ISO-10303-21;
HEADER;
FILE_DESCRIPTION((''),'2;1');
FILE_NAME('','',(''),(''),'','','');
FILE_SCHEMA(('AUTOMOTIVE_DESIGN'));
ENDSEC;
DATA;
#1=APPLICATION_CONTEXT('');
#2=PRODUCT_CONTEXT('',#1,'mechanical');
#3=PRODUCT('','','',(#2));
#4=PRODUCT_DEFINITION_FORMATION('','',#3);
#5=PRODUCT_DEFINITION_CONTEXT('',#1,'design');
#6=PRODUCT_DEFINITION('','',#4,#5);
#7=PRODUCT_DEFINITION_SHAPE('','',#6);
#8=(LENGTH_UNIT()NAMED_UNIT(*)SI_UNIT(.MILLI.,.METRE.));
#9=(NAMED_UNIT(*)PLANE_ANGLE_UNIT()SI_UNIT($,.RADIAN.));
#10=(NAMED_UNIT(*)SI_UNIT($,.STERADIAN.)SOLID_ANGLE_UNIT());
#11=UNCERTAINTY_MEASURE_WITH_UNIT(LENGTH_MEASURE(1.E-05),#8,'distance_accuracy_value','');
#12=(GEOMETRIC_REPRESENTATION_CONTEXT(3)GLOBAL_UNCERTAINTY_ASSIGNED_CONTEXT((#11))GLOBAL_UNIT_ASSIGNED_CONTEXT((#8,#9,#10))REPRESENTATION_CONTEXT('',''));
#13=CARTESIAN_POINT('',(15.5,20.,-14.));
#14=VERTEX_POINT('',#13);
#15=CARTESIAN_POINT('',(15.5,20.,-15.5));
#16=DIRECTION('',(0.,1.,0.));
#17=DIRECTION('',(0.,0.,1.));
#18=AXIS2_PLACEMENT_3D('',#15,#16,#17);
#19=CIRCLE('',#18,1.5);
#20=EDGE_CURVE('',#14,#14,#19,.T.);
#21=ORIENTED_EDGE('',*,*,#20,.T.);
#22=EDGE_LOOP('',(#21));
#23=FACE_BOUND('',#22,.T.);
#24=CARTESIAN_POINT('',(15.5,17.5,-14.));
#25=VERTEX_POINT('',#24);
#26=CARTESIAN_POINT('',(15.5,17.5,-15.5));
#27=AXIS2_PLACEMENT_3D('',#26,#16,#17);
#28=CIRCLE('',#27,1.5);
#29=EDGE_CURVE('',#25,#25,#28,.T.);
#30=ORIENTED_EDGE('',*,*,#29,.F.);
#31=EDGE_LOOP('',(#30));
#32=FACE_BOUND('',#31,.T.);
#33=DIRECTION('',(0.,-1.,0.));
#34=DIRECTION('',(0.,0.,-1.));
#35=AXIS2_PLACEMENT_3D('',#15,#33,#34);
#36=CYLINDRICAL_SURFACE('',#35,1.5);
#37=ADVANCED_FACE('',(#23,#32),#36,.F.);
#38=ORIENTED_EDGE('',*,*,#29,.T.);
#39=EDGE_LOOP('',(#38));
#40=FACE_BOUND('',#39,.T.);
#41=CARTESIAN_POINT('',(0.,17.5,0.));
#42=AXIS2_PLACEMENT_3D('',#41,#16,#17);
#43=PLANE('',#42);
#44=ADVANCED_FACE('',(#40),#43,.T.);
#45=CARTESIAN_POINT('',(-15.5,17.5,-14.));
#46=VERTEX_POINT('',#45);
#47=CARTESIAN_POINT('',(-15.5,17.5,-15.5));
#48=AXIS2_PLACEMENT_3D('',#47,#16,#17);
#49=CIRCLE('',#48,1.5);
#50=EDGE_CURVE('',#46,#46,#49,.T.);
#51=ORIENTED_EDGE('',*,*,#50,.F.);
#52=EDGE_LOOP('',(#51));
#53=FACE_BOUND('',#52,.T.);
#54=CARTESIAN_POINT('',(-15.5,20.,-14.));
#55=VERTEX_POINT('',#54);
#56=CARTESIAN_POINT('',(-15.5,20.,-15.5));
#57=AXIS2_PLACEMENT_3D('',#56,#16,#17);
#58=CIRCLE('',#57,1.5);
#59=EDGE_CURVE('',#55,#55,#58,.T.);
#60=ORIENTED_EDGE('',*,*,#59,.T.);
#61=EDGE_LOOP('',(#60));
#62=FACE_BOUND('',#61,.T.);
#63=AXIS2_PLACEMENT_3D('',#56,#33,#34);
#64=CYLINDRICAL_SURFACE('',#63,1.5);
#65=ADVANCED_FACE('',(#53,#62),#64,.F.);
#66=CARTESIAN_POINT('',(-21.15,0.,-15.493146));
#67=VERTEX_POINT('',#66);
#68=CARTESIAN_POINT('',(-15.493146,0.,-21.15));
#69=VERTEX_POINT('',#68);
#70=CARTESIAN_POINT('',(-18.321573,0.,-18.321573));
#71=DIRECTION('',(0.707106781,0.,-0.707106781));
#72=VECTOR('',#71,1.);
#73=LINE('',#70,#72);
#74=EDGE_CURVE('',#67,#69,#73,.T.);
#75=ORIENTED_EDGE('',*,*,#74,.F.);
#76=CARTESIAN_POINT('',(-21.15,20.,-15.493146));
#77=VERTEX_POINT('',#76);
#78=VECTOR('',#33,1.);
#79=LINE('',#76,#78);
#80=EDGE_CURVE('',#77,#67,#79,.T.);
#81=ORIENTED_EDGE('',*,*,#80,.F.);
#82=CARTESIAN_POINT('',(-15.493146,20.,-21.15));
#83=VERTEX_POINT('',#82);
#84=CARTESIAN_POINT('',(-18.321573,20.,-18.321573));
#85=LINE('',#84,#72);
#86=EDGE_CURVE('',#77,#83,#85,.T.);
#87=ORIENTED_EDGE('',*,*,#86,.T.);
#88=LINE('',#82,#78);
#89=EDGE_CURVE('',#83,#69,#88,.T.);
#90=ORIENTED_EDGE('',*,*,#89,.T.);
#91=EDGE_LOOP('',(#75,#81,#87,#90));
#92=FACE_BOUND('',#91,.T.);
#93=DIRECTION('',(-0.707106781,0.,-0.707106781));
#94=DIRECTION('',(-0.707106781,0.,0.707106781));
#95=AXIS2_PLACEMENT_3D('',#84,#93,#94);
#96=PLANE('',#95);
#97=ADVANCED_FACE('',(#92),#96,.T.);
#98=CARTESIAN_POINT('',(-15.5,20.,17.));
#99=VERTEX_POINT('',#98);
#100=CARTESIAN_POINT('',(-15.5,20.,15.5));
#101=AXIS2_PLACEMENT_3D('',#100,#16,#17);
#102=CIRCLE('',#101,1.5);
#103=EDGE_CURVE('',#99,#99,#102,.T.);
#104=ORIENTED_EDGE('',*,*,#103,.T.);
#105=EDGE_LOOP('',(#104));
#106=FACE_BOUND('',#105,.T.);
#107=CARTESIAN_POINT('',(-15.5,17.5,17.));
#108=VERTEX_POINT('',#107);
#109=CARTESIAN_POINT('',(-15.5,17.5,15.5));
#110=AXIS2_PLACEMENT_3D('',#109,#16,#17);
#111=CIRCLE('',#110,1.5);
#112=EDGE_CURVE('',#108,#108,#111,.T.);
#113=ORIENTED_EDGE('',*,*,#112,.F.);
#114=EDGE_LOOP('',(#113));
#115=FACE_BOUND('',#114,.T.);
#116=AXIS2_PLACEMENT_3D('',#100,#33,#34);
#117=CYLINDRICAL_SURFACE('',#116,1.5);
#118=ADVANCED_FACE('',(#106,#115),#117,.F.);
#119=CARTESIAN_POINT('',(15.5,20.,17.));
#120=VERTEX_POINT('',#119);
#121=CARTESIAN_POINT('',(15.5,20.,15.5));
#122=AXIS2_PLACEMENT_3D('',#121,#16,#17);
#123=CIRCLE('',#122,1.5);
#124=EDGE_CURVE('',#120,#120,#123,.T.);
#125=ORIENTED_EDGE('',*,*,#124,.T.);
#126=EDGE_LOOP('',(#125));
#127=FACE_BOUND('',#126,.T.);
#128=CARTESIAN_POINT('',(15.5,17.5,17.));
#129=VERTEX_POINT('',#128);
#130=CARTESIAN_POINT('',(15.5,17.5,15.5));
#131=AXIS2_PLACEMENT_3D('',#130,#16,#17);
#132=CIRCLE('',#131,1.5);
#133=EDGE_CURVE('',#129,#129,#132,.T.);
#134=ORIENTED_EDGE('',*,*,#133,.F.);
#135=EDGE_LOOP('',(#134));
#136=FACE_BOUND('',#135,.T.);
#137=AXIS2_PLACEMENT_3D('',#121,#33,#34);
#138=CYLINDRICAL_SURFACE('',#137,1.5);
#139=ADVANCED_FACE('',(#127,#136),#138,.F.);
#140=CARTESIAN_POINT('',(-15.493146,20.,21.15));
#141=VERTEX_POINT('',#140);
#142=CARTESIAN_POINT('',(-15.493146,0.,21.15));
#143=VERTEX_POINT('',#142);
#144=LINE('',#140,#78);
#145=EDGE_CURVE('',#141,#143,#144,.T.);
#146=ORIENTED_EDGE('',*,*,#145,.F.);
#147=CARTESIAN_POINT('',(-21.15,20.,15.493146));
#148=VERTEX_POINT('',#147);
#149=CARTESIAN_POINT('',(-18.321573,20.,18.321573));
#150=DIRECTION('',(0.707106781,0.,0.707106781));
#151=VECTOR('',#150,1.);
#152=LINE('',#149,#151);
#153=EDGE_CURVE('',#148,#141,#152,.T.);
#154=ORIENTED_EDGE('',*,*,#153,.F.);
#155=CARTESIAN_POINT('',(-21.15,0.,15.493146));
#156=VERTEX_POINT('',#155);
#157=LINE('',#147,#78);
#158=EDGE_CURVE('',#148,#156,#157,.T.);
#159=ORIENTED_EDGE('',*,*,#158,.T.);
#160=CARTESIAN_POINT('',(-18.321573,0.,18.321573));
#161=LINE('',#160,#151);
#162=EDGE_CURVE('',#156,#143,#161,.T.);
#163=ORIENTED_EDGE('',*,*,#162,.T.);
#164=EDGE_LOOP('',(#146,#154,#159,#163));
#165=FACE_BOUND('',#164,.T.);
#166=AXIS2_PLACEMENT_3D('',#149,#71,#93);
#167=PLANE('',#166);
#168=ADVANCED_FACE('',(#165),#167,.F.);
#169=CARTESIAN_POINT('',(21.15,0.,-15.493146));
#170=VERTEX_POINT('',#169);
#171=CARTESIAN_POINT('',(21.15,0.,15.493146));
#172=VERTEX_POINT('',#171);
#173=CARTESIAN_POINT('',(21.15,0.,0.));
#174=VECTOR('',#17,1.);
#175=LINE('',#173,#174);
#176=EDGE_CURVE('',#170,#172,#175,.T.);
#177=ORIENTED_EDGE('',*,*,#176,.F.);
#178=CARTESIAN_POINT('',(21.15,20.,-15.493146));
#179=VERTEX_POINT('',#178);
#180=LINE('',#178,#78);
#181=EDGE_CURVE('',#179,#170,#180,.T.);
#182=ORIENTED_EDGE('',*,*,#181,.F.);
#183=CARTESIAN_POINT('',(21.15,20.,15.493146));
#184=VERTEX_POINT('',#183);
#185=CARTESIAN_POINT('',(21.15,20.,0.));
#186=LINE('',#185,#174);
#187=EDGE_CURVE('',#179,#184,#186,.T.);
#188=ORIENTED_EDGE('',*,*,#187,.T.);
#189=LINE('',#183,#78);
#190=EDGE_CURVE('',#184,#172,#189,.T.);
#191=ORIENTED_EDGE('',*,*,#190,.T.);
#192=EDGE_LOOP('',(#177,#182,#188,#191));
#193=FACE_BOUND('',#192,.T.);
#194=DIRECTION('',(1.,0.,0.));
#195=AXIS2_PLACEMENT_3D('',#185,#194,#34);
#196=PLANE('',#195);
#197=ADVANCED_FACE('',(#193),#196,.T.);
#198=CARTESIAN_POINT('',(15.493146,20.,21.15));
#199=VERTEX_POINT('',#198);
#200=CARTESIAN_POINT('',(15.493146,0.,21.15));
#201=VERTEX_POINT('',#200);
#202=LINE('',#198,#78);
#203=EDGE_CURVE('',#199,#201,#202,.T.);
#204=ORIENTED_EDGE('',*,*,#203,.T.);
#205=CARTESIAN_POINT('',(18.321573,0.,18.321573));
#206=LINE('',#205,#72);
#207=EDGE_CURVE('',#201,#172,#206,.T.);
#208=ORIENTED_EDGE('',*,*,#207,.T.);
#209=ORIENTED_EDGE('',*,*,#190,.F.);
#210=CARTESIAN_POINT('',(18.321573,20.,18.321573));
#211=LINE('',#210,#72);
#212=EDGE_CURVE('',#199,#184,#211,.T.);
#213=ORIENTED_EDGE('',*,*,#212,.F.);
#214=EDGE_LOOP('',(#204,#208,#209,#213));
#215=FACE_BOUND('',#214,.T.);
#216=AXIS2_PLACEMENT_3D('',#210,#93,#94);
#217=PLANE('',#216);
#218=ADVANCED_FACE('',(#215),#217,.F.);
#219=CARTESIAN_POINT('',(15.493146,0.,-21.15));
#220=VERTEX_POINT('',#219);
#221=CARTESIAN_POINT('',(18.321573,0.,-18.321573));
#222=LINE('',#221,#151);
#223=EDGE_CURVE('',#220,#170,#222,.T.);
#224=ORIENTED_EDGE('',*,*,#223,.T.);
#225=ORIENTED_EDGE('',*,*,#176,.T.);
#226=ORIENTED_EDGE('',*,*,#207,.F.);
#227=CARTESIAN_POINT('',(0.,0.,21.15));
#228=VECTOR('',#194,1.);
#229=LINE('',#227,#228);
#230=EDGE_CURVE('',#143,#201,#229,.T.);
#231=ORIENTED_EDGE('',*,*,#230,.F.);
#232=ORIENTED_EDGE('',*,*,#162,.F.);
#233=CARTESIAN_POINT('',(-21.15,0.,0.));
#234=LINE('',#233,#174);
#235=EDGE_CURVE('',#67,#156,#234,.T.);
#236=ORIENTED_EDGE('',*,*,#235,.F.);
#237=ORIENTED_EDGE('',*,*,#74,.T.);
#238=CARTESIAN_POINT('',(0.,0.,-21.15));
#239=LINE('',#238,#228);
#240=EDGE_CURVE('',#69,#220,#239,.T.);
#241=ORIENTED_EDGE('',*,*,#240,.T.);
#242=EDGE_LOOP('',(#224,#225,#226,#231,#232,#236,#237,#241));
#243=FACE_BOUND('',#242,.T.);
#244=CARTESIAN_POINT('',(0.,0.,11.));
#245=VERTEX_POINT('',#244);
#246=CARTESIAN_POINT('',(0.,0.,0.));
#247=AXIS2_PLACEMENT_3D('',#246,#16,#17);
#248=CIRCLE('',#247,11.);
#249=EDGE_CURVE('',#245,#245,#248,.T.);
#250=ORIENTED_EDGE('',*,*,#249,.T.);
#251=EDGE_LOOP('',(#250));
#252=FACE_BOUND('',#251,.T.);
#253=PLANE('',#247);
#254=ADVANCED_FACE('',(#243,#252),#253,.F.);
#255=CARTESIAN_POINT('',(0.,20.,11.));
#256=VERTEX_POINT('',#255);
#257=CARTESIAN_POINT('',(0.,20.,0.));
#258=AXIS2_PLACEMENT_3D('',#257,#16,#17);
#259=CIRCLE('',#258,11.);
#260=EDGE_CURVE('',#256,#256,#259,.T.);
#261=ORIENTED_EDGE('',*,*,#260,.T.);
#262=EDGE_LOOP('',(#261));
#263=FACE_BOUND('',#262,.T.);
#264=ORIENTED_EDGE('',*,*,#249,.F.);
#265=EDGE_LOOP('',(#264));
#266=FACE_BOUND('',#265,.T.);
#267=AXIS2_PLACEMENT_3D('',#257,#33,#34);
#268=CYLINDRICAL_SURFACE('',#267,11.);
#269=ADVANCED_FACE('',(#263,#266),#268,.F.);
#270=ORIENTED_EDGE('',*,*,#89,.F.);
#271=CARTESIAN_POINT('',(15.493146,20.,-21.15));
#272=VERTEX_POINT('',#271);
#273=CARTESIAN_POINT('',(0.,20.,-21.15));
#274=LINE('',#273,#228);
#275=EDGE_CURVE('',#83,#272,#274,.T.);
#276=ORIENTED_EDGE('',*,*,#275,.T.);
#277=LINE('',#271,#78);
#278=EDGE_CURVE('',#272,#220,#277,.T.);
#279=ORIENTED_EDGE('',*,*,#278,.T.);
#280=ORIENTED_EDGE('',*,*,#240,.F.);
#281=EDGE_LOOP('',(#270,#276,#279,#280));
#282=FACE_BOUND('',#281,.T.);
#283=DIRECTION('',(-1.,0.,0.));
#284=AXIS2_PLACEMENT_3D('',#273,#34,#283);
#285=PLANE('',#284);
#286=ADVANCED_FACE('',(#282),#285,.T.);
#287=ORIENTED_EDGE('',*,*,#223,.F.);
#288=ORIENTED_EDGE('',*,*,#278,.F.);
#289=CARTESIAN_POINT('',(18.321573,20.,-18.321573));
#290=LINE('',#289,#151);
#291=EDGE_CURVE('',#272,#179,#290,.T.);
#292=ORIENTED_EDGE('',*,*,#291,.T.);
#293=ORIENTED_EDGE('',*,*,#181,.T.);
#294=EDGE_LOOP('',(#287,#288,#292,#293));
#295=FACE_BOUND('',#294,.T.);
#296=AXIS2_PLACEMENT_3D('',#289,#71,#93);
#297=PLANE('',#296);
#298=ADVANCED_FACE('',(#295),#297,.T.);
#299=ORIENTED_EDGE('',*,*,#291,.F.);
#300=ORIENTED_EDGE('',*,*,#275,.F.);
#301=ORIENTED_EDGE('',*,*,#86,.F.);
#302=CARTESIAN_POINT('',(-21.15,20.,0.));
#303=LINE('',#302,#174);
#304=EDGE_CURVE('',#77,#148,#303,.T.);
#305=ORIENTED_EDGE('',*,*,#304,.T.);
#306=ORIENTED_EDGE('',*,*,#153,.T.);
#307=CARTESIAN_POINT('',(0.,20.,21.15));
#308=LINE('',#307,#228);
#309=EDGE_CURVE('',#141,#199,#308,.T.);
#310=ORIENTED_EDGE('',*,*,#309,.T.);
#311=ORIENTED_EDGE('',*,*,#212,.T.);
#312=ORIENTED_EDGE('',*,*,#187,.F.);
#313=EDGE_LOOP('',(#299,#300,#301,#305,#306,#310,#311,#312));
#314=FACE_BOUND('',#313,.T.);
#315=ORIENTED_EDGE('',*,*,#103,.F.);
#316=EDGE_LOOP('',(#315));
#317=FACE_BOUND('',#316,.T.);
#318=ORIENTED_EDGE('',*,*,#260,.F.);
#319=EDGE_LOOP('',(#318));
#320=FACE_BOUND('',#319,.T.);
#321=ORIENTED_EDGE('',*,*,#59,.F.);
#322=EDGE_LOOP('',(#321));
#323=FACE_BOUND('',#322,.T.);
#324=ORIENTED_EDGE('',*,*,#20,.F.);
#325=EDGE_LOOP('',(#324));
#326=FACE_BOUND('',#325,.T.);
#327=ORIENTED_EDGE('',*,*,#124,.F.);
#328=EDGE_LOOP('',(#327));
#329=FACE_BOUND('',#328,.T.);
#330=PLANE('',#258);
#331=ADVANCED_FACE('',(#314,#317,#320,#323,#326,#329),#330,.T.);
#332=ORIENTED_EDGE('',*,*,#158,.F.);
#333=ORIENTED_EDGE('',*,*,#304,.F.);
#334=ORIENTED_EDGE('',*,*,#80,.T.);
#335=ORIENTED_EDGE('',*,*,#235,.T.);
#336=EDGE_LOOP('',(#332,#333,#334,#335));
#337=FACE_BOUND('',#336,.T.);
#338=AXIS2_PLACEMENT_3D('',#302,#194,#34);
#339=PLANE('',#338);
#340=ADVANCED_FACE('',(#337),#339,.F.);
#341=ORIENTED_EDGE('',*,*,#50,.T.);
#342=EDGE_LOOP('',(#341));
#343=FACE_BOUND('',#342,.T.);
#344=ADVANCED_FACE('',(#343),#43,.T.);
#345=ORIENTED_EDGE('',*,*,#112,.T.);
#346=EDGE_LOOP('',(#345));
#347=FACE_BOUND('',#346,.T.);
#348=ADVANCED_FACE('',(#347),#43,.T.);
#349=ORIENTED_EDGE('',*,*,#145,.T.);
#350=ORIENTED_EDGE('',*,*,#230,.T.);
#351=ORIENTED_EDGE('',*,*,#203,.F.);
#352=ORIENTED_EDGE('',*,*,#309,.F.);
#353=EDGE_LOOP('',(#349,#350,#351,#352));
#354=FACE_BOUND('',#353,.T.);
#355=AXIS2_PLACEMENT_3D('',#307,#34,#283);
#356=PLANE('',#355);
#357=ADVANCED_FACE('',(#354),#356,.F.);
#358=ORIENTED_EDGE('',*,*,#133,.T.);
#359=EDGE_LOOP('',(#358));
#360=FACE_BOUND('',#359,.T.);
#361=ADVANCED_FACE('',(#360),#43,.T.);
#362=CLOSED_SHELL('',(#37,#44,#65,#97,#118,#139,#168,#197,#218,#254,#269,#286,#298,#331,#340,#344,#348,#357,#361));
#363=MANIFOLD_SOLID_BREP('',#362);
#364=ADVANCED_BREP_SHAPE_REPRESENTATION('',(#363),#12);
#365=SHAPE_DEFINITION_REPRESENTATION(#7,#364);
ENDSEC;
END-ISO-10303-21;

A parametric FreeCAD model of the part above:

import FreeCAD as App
import Part
import Sketcher

V = App.Vector

doc = App.newDocument("Part")
body = doc.addObject("PartDesign::Body", "Body")

# Sketch on XZ plane
sketch1 = body.newObject("Sketcher::SketchObject", "Sketch")
sketch1.AttachmentSupport = (doc.getObject("XZ_Plane"), [""])
sketch1.MapMode = "FlatFace"
sketch1.addGeometry(Part.LineSegment(V(-15.5, -21.1, 0), V(-21.1, -15.5, 0)), False)
sketch1.addGeometry(Part.LineSegment(V(-21.1, -15.5, 0), V(-21.1, 15.5, 0)), False)
sketch1.addGeometry(Part.LineSegment(V(-21.1, 15.5, 0), V(-15.5, 21.1, 0)), False)
sketch1.addGeometry(Part.LineSegment(V(-15.5, 21.1, 0), V(15.5, 21.1, 0)), False)
sketch1.addGeometry(Part.LineSegment(V(15.5, 21.1, 0), V(21.1, 15.5, 0)), False)
sketch1.addGeometry(Part.LineSegment(V(21.1, 15.5, 0), V(21.1, -15.5, 0)), False)
sketch1.addGeometry(Part.LineSegment(V(21.1, -15.5, 0), V(15.5, -21.1, 0)), False)
sketch1.addGeometry(Part.LineSegment(V(15.5, -21.1, 0), V(-15.5, -21.1, 0)), False)
sketch1.addGeometry(Part.Circle(V(-15.5, 15.5, 0), V(0, 0, 1), 1.5), False)
sketch1.addGeometry(Part.Circle(V(15.5, 15.5, 0), V(0, 0, 1), 1.5), False)
sketch1.addGeometry(Part.Circle(V(-15.5, -15.5, 0), V(0, 0, 1), 1.5), False)
sketch1.addGeometry(Part.Circle(V(0, 0, 0), V(0, 0, 1), 11), False)
sketch1.addGeometry(Part.Circle(V(15.5, -15.5, 0), V(0, 0, 1), 1.5), False)
sketch1.addConstraint(Sketcher.Constraint("Coincident", 0, 2, 1, 1))
sketch1.addConstraint(Sketcher.Constraint("Coincident", 1, 2, 2, 1))
sketch1.addConstraint(Sketcher.Constraint("Coincident", 2, 2, 3, 1))
sketch1.addConstraint(Sketcher.Constraint("Coincident", 3, 2, 4, 1))
sketch1.addConstraint(Sketcher.Constraint("Coincident", 4, 2, 5, 1))
sketch1.addConstraint(Sketcher.Constraint("Coincident", 5, 2, 6, 1))
sketch1.addConstraint(Sketcher.Constraint("Coincident", 6, 2, 7, 1))
sketch1.addConstraint(Sketcher.Constraint("Coincident", 7, 2, 0, 1))
sketch1.addConstraint(Sketcher.Constraint("Vertical", 1))
sketch1.addConstraint(Sketcher.Constraint("Horizontal", 3))
sketch1.addConstraint(Sketcher.Constraint("Vertical", 5))
sketch1.addConstraint(Sketcher.Constraint("Horizontal", 7))
sketch1.addConstraint(Sketcher.Constraint("Coincident", 11, 3, -1, 1))
sketch1.addConstraint(Sketcher.Constraint("Equal", 8, 9))
sketch1.addConstraint(Sketcher.Constraint("Equal", 9, 10))
sketch1.addConstraint(Sketcher.Constraint("Equal", 10, 12))
sketch1.addConstraint(Sketcher.Constraint("Symmetric", 9, 3, 10, 3, -1, 1))
sketch1.addConstraint(Sketcher.Constraint("Symmetric", 8, 3, 12, 3, -1, 1))
sketch1.addConstraint(Sketcher.Constraint("Symmetric", 0, 2, 4, 2, -1, 1))
sketch1.addConstraint(Sketcher.Constraint("Symmetric", 2, 2, 6, 2, -1, 1))
sketch1.addConstraint(Sketcher.Constraint("Symmetric", 8, 3, 9, 3, -2))
sketch1.addConstraint(Sketcher.Constraint("Perpendicular", 0, 2))
sketch1.addConstraint(Sketcher.Constraint("Perpendicular", 2, 4))
sketch1.addConstraint(Sketcher.Constraint("Perpendicular", 4, 6))
sketch1.addConstraint(Sketcher.Constraint("Horizontal", 1, 2, 4, 2))
sketch1.addConstraint(Sketcher.Constraint("Vertical", 3, 2, 6, 2))
sketch1.addConstraint(Sketcher.Constraint("Equal", 7, 1))
sketch1.addConstraint(Sketcher.Constraint("Diameter", 8, 3.0))
sketch1.addConstraint(Sketcher.Constraint("Diameter", 11, 22.0))
sketch1.addConstraint(Sketcher.Constraint("Distance", 0, 8.0))
sketch1.addConstraint(Sketcher.Constraint("DistanceX", 8, 3, 9, 3, 31.0))
sketch1.addConstraint(Sketcher.Constraint("DistanceY", 10, 3, 8, 3, 31.0))
sketch1.addConstraint(Sketcher.Constraint("DistanceX", 0, 2, -1, 1, 21.15))
pad1 = body.newObject("PartDesign::Pad", "Pad")
pad1.Profile = sketch1
pad1.Length = 20
pad1.Reversed = True

# Sketch on XZ plane
sketch2 = body.newObject("Sketcher::SketchObject", "Sketch001")
sketch2.AttachmentSupport = (doc.getObject("XZ_Plane"), [""])
sketch2.MapMode = "FlatFace"
sketch2.addGeometry(Part.Circle(V(15.5, 15.5, 0), V(0, 0, 1), 1.5), False)
sketch2.addGeometry(Part.Circle(V(-15.5, 15.5, 0), V(0, 0, 1), 1.5), False)
sketch2.addGeometry(Part.Circle(V(15.5, -15.5, 0), V(0, 0, 1), 1.5), False)
sketch2.addGeometry(Part.Circle(V(-15.5, -15.5, 0), V(0, 0, 1), 1.5), False)
sketch2.addConstraint(Sketcher.Constraint("Equal", 0, 1))
sketch2.addConstraint(Sketcher.Constraint("Equal", 1, 2))
sketch2.addConstraint(Sketcher.Constraint("Equal", 2, 3))
sketch2.addConstraint(Sketcher.Constraint("Symmetric", 1, 3, 2, 3, -1, 1))
sketch2.addConstraint(Sketcher.Constraint("Symmetric", 0, 3, 3, 3, -1, 1))
sketch2.addConstraint(Sketcher.Constraint("Symmetric", 0, 3, 1, 3, -2))
sketch2.addConstraint(Sketcher.Constraint("Diameter", 0, 3.0))
sketch2.addConstraint(Sketcher.Constraint("DistanceX", 1, 3, 0, 3, 31.0))
sketch2.addConstraint(Sketcher.Constraint("DistanceY", 2, 3, 0, 3, 31.0))
pad2 = body.newObject("PartDesign::Pad", "Pad001")
pad2.Profile = sketch2
pad2.Length = 17.5
pad2.Reversed = True

doc.recompute()
